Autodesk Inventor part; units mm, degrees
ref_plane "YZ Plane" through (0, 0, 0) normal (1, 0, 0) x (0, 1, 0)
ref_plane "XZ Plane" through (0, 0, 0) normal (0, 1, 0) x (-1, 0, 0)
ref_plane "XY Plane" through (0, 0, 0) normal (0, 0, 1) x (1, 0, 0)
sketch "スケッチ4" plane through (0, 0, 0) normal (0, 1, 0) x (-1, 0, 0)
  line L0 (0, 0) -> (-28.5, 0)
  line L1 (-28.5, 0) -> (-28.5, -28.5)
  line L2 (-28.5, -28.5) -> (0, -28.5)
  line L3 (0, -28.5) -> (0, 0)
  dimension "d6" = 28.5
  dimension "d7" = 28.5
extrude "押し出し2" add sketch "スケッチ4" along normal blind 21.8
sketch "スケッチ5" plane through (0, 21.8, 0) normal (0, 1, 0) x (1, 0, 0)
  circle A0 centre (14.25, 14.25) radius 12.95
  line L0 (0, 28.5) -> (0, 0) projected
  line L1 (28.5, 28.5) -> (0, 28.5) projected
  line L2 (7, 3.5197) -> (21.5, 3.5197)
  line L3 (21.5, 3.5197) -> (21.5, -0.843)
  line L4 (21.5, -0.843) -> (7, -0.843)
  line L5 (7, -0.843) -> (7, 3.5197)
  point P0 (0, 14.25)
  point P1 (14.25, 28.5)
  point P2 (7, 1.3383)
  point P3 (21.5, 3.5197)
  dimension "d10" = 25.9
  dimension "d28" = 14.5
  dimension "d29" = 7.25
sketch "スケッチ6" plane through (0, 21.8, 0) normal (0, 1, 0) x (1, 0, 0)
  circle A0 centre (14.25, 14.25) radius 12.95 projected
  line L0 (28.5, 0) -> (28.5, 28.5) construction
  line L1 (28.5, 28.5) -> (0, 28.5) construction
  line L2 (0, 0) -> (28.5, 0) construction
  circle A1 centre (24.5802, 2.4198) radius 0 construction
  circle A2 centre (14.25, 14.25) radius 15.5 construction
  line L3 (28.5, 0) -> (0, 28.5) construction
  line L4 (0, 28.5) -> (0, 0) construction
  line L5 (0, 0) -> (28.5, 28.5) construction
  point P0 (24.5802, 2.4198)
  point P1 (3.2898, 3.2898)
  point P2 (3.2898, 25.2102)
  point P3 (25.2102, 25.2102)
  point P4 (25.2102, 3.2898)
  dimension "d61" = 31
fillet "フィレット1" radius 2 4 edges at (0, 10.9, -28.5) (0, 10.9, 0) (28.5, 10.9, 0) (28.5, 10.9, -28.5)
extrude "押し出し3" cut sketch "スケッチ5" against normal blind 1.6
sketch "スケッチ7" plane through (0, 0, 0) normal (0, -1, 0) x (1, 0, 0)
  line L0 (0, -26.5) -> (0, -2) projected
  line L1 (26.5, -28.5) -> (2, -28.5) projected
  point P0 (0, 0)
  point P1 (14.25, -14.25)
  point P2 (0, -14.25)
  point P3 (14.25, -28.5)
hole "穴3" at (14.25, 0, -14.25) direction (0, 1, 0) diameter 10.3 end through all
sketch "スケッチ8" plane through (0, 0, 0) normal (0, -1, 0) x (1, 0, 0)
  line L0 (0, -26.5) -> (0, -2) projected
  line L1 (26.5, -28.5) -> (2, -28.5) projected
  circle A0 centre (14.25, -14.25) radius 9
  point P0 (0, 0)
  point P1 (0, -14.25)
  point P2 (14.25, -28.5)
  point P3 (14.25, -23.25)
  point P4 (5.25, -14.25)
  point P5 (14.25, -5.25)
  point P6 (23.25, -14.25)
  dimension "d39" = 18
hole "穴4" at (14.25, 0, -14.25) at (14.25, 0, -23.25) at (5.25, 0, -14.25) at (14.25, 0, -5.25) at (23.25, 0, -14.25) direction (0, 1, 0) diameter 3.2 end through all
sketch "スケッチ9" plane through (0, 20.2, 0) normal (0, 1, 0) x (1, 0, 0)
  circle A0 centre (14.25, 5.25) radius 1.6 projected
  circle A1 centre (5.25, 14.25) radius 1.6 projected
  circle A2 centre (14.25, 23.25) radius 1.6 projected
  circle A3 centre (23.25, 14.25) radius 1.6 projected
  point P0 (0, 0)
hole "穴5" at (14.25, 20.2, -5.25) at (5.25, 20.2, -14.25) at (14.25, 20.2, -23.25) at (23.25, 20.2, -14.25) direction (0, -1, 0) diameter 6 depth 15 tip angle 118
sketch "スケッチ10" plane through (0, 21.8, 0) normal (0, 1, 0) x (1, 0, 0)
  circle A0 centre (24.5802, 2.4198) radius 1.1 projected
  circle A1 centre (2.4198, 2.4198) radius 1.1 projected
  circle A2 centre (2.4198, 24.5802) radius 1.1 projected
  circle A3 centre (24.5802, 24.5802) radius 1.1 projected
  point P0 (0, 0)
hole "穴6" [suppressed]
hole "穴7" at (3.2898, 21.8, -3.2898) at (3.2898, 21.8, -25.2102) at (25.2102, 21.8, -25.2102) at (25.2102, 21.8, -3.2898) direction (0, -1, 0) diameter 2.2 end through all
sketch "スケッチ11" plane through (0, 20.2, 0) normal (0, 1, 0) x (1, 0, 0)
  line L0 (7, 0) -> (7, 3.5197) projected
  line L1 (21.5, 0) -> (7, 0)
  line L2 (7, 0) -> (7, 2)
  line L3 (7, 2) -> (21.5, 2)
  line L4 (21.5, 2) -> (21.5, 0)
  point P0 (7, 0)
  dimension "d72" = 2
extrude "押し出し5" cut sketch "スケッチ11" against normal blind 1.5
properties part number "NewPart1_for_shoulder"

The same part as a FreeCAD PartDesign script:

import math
import FreeCAD as App
import Part
import Sketcher
from FreeCAD import Vector
Q = App.Units.Quantity


def edges_at(feature, points):
    """Names of the edges that pass closest to the given points."""
    edges = feature.Shape.Edges
    near = lambda p: min(range(len(edges)), key=lambda i: edges[i].distToShape(Part.Vertex(*p))[0])
    return sorted({f"Edge{near(p) + 1}" for p in points})


def add_polygon(sketch, points):
    """Adds a closed chain of lines whose ends are joined by coincident constraints."""
    first, n = sketch.GeometryCount, len(points)
    for a, b in zip(points, points[1:] + points[:1]):
        sketch.addGeometry(Part.LineSegment(App.Vector(*a, 0), App.Vector(*b, 0)), False)
    for i in range(n):
        sketch.addConstraint(Sketcher.Constraint("Coincident", first + i, 2, first + (i + 1) % n, 1))

doc = App.newDocument("Part")
body = doc.addObject("PartDesign::Body", "Body")

# Sketch on XZ plane
sketch1 = body.newObject("Sketcher::SketchObject", "Sketch")
sketch1.AttachmentSupport = (doc.getObject("XZ_Plane"), [""])
sketch1.MapMode = "FlatFace"
add_polygon(sketch1, [(0, -28), (0, 0), (28, 0), (28, -28)])  # lines 0-3
sketch1.addConstraint([
    Sketcher.Constraint("Vertical", 0),
    Sketcher.Constraint("Horizontal", 1),
    Sketcher.Constraint("Vertical", 2),
    Sketcher.Constraint("Horizontal", 3),
    Sketcher.Constraint("Coincident", 0, 2, -1, 1),
    Sketcher.Constraint("Equal", 3, 0),
    Sketcher.Constraint("DistanceX", 1, 1, 1, 2, Q("28.5 mm")),
])
pad1 = body.newObject("PartDesign::Pad", "Pad")
pad1.Profile = sketch1
pad1.Length = 21.8
pad1.Reversed = True
doc.recompute()

fillet = body.newObject("PartDesign::Fillet", "Fillet")
fillet.Base = (pad1, edges_at(pad1, [
    (0, 10.9, -28.5),
    (0, 10.9, 0),
    (28.5, 10.9, 0),
    (28.5, 10.9, -28.5),
]))
fillet.Radius = 2

# Sketch on XZ plane
sketch2 = body.newObject("Sketcher::SketchObject", "Sketch001")
sketch2.AttachmentSupport = (doc.getObject("XZ_Plane"), [""])
sketch2.MapMode = "FlatFace"
sketch2.AttachmentOffset = App.Placement(Vector(0, 0, -21.8), App.Rotation())
sketch2.addGeometry([
    Part.ArcOfCircle(Part.Circle(Vector(14.2, -14.2, 0), Vector(0, 0, 1), 12.9), math.radians(124), math.radians(416)),
    Part.LineSegment(Vector(7, -3.5, 0), Vector(7, 0.8, 0)),
    Part.LineSegment(Vector(7, 0.8, 0), Vector(21.5, 0.8, 0)),
    Part.LineSegment(Vector(21.5, 0.8, 0), Vector(21.5, -3.5, 0)),
], False)
sketch2.addConstraint([
    Sketcher.Constraint("Coincident", 0, 1, 1, 1),
    Sketcher.Constraint("Coincident", 1, 2, 2, 1),
    Sketcher.Constraint("Coincident", 2, 2, 3, 1),
    Sketcher.Constraint("Coincident", 3, 2, 0, 2),
    Sketcher.Constraint("Vertical", 1),
    Sketcher.Constraint("Horizontal", 2),
    Sketcher.Constraint("Vertical", 3),
    Sketcher.Constraint("Horizontal", 0, 1, 3, 2),
    Sketcher.Constraint("Radius", 0, Q("12.95 mm")),
    Sketcher.Constraint("DistanceX", 2, 1, 2, 2, Q("14.5 mm")),
    Sketcher.Constraint("DistanceX", -1, 1, 0, 1, Q("7 mm")),
    Sketcher.Constraint("DistanceY", 0, 3, -1, 1, Q("14.25 mm")),
    Sketcher.Constraint("DistanceY", 1, 1, 1, 2, Q("4.3627 mm")),
])
pocket1 = body.newObject("PartDesign::Pocket", "Pocket")
pocket1.Profile = sketch2
pocket1.Length = 1.6
pocket1.Reversed = True

# Sketch on XZ plane
sketch3 = body.newObject("Sketcher::SketchObject", "Sketch002")
sketch3.AttachmentSupport = (doc.getObject("XZ_Plane"), [""])
sketch3.MapMode = "FlatFace"
sketch3.addGeometry(Part.Circle(Vector(14, -14, 0), Vector(0, 0, 1), 5), False)
sketch3.addConstraint([
    Sketcher.Constraint("Diameter", 0, Q("10.3 mm")),
    Sketcher.Constraint("DistanceX", -1, 1, 0, 3, Q("14.25 mm")),
    Sketcher.Constraint("DistanceY", 0, 3, -1, 1, Q("14.25 mm")),
])
doc.recompute()
hole = body.newObject("PartDesign::Hole", "Hole")
hole.Profile = sketch3
hole.ThreadType = "None"
hole.Diameter = 10.3
hole.DepthType = "ThroughAll"

# Sketch on XZ plane
sketch4 = body.newObject("Sketcher::SketchObject", "Sketch003")
sketch4.AttachmentSupport = (doc.getObject("XZ_Plane"), [""])
sketch4.MapMode = "FlatFace"
sketch4.addGeometry([
    Part.Circle(Vector(14.2, -14.2, 0), Vector(0, 0, 1), 1.6),  # 0
    Part.Circle(Vector(14.2, -23.2, 0), Vector(0, 0, 1), 1.6),  # 1
    Part.Circle(Vector(5.2, -14.2, 0), Vector(0, 0, 1), 1.6),  # 2
    Part.Circle(Vector(14.2, -5.2, 0), Vector(0, 0, 1), 1.6),  # 3
    Part.Circle(Vector(23.2, -14.2, 0), Vector(0, 0, 1), 1.6),  # 4
], False)
sketch4.addConstraint([
    Sketcher.Constraint("Equal", 0, 1),
    Sketcher.Constraint("Equal", 1, 2),
    Sketcher.Constraint("Equal", 2, 3),
    Sketcher.Constraint("Equal", 3, 4),
    Sketcher.Constraint("Horizontal", 0, 3, 2, 3),
    Sketcher.Constraint("Horizontal", 2, 3, 4, 3),
    Sketcher.Constraint("Vertical", 0, 3, 1, 3),
    Sketcher.Constraint("Vertical", 1, 3, 3, 3),
    Sketcher.Constraint("Diameter", 0, Q("3.2 mm")),
    Sketcher.Constraint("DistanceY", 1, 3, 0, 3, Q("9 mm")),
    Sketcher.Constraint("DistanceX", 2, 3, 0, 3, Q("9 mm")),
    Sketcher.Constraint("DistanceY", 0, 3, 3, 3, Q("9 mm")),
    Sketcher.Constraint("DistanceX", 0, 3, 4, 3, Q("9 mm")),
    Sketcher.Constraint("DistanceX", -1, 1, 0, 3, Q("14.25 mm")),
    Sketcher.Constraint("DistanceY", 0, 3, -1, 1, Q("14.25 mm")),
])
doc.recompute()
hole2 = body.newObject("PartDesign::Hole", "Hole001")
hole2.Profile = sketch4
hole2.ThreadType = "None"
hole2.Diameter = 3.2
hole2.DepthType = "ThroughAll"

# Sketch on XZ plane
sketch5 = body.newObject("Sketcher::SketchObject", "Sketch004")
sketch5.AttachmentSupport = (doc.getObject("XZ_Plane"), [""])
sketch5.MapMode = "FlatFace"
sketch5.AttachmentOffset = App.Placement(Vector(0, 0, -20.2), App.Rotation())
sketch5.addGeometry([
    Part.Circle(Vector(14.2, -5.2, 0), Vector(0, 0, 1), 3),
    Part.Circle(Vector(5.2, -14.2, 0), Vector(0, 0, 1), 3),
    Part.Circle(Vector(14.2, -23.2, 0), Vector(0, 0, 1), 3),
    Part.Circle(Vector(23.2, -14.2, 0), Vector(0, 0, 1), 3),
], False)
sketch5.addConstraint([
    Sketcher.Constraint("Equal", 0, 1),
    Sketcher.Constraint("Equal", 1, 2),
    Sketcher.Constraint("Equal", 2, 3),
    Sketcher.Constraint("Horizontal", 1, 3, 3, 3),
    Sketcher.Constraint("Vertical", 0, 3, 2, 3),
    Sketcher.Constraint("Diameter", 0, Q("6 mm")),
    Sketcher.Constraint("DistanceX", 1, 3, 0, 3, Q("9 mm")),
    Sketcher.Constraint("DistanceY", 1, 3, 0, 3, Q("9 mm")),
    Sketcher.Constraint("DistanceY", 2, 3, 1, 3, Q("9 mm")),
    Sketcher.Constraint("DistanceX", 0, 3, 3, 3, Q("9 mm")),
    Sketcher.Constraint("DistanceX", -1, 1, 0, 3, Q("14.25 mm")),
    Sketcher.Constraint("DistanceY", 0, 3, -1, 1, Q("5.25 mm")),
])
doc.recompute()
hole3 = body.newObject("PartDesign::Hole", "Hole002")
hole3.Profile = sketch5
hole3.ThreadType = "None"
hole3.Diameter = 6
hole3.DepthType = "Dimension"
hole3.Depth = 15
hole3.DrillPoint = "Angled"
hole3.DrillPointAngle = 118
hole3.Reversed = True

# Sketch on XZ plane
sketch6 = body.newObject("Sketcher::SketchObject", "Sketch005")
sketch6.AttachmentSupport = (doc.getObject("XZ_Plane"), [""])
sketch6.MapMode = "FlatFace"
sketch6.AttachmentOffset = App.Placement(Vector(0, 0, -21.8), App.Rotation())
sketch6.addGeometry([
    Part.Circle(Vector(3.3, -3.3, 0), Vector(0, 0, 1), 1.1),
    Part.Circle(Vector(3.3, -25.2, 0), Vector(0, 0, 1), 1.1),
    Part.Circle(Vector(25.2, -25.2, 0), Vector(0, 0, 1), 1.1),
    Part.Circle(Vector(25.2, -3.3, 0), Vector(0, 0, 1), 1.1),
], False)
sketch6.addConstraint([
    Sketcher.Constraint("Equal", 0, 1),
    Sketcher.Constraint("Equal", 1, 2),
    Sketcher.Constraint("Equal", 2, 3),
    Sketcher.Constraint("Horizontal", 1, 3, 2, 3),
    Sketcher.Constraint("Horizontal", 0, 3, 3, 3),
    Sketcher.Constraint("Vertical", 0, 3, 1, 3),
    Sketcher.Constraint("Vertical", 2, 3, 3, 3),
    Sketcher.Constraint("Diameter", 0, Q("2.2 mm")),
    Sketcher.Constraint("DistanceX", -1, 1, 0, 3, Q("3.2898 mm")),
    Sketcher.Constraint("DistanceY", 0, 3, -1, 1, Q("3.2898 mm")),
    Sketcher.Constraint("DistanceY", 1, 3, -1, 1, Q("25.2102 mm")),
    Sketcher.Constraint("DistanceX", -1, 1, 2, 3, Q("25.2102 mm")),
])
doc.recompute()
hole4 = body.newObject("PartDesign::Hole", "Hole003")
hole4.Profile = sketch6
hole4.ThreadType = "None"
hole4.Diameter = 2.2
hole4.DepthType = "ThroughAll"
hole4.Reversed = True

# Sketch on XZ plane
sketch7 = body.newObject("Sketcher::SketchObject", "Sketch006")
sketch7.AttachmentSupport = (doc.getObject("XZ_Plane"), [""])
sketch7.MapMode = "FlatFace"
sketch7.AttachmentOffset = App.Placement(Vector(0, 0, -20.2), App.Rotation())
add_polygon(sketch7, [(7, -2), (7, 0), (21.5, 0), (21.5, -2)])  # lines 0-3
sketch7.addConstraint([
    Sketcher.Constraint("Vertical", 0),
    Sketcher.Constraint("Horizontal", 1),
    Sketcher.Constraint("Vertical", 2),
    Sketcher.Constraint("Horizontal", 3),
    Sketcher.Constraint("PointOnObject", 0, 2, -1),
    Sketcher.Constraint("DistanceY", 0, 1, 0, 2, Q("2 mm")),
    Sketcher.Constraint("DistanceX", 1, 1, 1, 2, Q("14.5 mm")),
    Sketcher.Constraint("DistanceX", -1, 1, 0, 2, Q("7 mm")),
])
pocket2 = body.newObject("PartDesign::Pocket", "Pocket001")
pocket2.Profile = sketch7
pocket2.Length = 1.5
pocket2.Reversed = True

doc.recompute()
